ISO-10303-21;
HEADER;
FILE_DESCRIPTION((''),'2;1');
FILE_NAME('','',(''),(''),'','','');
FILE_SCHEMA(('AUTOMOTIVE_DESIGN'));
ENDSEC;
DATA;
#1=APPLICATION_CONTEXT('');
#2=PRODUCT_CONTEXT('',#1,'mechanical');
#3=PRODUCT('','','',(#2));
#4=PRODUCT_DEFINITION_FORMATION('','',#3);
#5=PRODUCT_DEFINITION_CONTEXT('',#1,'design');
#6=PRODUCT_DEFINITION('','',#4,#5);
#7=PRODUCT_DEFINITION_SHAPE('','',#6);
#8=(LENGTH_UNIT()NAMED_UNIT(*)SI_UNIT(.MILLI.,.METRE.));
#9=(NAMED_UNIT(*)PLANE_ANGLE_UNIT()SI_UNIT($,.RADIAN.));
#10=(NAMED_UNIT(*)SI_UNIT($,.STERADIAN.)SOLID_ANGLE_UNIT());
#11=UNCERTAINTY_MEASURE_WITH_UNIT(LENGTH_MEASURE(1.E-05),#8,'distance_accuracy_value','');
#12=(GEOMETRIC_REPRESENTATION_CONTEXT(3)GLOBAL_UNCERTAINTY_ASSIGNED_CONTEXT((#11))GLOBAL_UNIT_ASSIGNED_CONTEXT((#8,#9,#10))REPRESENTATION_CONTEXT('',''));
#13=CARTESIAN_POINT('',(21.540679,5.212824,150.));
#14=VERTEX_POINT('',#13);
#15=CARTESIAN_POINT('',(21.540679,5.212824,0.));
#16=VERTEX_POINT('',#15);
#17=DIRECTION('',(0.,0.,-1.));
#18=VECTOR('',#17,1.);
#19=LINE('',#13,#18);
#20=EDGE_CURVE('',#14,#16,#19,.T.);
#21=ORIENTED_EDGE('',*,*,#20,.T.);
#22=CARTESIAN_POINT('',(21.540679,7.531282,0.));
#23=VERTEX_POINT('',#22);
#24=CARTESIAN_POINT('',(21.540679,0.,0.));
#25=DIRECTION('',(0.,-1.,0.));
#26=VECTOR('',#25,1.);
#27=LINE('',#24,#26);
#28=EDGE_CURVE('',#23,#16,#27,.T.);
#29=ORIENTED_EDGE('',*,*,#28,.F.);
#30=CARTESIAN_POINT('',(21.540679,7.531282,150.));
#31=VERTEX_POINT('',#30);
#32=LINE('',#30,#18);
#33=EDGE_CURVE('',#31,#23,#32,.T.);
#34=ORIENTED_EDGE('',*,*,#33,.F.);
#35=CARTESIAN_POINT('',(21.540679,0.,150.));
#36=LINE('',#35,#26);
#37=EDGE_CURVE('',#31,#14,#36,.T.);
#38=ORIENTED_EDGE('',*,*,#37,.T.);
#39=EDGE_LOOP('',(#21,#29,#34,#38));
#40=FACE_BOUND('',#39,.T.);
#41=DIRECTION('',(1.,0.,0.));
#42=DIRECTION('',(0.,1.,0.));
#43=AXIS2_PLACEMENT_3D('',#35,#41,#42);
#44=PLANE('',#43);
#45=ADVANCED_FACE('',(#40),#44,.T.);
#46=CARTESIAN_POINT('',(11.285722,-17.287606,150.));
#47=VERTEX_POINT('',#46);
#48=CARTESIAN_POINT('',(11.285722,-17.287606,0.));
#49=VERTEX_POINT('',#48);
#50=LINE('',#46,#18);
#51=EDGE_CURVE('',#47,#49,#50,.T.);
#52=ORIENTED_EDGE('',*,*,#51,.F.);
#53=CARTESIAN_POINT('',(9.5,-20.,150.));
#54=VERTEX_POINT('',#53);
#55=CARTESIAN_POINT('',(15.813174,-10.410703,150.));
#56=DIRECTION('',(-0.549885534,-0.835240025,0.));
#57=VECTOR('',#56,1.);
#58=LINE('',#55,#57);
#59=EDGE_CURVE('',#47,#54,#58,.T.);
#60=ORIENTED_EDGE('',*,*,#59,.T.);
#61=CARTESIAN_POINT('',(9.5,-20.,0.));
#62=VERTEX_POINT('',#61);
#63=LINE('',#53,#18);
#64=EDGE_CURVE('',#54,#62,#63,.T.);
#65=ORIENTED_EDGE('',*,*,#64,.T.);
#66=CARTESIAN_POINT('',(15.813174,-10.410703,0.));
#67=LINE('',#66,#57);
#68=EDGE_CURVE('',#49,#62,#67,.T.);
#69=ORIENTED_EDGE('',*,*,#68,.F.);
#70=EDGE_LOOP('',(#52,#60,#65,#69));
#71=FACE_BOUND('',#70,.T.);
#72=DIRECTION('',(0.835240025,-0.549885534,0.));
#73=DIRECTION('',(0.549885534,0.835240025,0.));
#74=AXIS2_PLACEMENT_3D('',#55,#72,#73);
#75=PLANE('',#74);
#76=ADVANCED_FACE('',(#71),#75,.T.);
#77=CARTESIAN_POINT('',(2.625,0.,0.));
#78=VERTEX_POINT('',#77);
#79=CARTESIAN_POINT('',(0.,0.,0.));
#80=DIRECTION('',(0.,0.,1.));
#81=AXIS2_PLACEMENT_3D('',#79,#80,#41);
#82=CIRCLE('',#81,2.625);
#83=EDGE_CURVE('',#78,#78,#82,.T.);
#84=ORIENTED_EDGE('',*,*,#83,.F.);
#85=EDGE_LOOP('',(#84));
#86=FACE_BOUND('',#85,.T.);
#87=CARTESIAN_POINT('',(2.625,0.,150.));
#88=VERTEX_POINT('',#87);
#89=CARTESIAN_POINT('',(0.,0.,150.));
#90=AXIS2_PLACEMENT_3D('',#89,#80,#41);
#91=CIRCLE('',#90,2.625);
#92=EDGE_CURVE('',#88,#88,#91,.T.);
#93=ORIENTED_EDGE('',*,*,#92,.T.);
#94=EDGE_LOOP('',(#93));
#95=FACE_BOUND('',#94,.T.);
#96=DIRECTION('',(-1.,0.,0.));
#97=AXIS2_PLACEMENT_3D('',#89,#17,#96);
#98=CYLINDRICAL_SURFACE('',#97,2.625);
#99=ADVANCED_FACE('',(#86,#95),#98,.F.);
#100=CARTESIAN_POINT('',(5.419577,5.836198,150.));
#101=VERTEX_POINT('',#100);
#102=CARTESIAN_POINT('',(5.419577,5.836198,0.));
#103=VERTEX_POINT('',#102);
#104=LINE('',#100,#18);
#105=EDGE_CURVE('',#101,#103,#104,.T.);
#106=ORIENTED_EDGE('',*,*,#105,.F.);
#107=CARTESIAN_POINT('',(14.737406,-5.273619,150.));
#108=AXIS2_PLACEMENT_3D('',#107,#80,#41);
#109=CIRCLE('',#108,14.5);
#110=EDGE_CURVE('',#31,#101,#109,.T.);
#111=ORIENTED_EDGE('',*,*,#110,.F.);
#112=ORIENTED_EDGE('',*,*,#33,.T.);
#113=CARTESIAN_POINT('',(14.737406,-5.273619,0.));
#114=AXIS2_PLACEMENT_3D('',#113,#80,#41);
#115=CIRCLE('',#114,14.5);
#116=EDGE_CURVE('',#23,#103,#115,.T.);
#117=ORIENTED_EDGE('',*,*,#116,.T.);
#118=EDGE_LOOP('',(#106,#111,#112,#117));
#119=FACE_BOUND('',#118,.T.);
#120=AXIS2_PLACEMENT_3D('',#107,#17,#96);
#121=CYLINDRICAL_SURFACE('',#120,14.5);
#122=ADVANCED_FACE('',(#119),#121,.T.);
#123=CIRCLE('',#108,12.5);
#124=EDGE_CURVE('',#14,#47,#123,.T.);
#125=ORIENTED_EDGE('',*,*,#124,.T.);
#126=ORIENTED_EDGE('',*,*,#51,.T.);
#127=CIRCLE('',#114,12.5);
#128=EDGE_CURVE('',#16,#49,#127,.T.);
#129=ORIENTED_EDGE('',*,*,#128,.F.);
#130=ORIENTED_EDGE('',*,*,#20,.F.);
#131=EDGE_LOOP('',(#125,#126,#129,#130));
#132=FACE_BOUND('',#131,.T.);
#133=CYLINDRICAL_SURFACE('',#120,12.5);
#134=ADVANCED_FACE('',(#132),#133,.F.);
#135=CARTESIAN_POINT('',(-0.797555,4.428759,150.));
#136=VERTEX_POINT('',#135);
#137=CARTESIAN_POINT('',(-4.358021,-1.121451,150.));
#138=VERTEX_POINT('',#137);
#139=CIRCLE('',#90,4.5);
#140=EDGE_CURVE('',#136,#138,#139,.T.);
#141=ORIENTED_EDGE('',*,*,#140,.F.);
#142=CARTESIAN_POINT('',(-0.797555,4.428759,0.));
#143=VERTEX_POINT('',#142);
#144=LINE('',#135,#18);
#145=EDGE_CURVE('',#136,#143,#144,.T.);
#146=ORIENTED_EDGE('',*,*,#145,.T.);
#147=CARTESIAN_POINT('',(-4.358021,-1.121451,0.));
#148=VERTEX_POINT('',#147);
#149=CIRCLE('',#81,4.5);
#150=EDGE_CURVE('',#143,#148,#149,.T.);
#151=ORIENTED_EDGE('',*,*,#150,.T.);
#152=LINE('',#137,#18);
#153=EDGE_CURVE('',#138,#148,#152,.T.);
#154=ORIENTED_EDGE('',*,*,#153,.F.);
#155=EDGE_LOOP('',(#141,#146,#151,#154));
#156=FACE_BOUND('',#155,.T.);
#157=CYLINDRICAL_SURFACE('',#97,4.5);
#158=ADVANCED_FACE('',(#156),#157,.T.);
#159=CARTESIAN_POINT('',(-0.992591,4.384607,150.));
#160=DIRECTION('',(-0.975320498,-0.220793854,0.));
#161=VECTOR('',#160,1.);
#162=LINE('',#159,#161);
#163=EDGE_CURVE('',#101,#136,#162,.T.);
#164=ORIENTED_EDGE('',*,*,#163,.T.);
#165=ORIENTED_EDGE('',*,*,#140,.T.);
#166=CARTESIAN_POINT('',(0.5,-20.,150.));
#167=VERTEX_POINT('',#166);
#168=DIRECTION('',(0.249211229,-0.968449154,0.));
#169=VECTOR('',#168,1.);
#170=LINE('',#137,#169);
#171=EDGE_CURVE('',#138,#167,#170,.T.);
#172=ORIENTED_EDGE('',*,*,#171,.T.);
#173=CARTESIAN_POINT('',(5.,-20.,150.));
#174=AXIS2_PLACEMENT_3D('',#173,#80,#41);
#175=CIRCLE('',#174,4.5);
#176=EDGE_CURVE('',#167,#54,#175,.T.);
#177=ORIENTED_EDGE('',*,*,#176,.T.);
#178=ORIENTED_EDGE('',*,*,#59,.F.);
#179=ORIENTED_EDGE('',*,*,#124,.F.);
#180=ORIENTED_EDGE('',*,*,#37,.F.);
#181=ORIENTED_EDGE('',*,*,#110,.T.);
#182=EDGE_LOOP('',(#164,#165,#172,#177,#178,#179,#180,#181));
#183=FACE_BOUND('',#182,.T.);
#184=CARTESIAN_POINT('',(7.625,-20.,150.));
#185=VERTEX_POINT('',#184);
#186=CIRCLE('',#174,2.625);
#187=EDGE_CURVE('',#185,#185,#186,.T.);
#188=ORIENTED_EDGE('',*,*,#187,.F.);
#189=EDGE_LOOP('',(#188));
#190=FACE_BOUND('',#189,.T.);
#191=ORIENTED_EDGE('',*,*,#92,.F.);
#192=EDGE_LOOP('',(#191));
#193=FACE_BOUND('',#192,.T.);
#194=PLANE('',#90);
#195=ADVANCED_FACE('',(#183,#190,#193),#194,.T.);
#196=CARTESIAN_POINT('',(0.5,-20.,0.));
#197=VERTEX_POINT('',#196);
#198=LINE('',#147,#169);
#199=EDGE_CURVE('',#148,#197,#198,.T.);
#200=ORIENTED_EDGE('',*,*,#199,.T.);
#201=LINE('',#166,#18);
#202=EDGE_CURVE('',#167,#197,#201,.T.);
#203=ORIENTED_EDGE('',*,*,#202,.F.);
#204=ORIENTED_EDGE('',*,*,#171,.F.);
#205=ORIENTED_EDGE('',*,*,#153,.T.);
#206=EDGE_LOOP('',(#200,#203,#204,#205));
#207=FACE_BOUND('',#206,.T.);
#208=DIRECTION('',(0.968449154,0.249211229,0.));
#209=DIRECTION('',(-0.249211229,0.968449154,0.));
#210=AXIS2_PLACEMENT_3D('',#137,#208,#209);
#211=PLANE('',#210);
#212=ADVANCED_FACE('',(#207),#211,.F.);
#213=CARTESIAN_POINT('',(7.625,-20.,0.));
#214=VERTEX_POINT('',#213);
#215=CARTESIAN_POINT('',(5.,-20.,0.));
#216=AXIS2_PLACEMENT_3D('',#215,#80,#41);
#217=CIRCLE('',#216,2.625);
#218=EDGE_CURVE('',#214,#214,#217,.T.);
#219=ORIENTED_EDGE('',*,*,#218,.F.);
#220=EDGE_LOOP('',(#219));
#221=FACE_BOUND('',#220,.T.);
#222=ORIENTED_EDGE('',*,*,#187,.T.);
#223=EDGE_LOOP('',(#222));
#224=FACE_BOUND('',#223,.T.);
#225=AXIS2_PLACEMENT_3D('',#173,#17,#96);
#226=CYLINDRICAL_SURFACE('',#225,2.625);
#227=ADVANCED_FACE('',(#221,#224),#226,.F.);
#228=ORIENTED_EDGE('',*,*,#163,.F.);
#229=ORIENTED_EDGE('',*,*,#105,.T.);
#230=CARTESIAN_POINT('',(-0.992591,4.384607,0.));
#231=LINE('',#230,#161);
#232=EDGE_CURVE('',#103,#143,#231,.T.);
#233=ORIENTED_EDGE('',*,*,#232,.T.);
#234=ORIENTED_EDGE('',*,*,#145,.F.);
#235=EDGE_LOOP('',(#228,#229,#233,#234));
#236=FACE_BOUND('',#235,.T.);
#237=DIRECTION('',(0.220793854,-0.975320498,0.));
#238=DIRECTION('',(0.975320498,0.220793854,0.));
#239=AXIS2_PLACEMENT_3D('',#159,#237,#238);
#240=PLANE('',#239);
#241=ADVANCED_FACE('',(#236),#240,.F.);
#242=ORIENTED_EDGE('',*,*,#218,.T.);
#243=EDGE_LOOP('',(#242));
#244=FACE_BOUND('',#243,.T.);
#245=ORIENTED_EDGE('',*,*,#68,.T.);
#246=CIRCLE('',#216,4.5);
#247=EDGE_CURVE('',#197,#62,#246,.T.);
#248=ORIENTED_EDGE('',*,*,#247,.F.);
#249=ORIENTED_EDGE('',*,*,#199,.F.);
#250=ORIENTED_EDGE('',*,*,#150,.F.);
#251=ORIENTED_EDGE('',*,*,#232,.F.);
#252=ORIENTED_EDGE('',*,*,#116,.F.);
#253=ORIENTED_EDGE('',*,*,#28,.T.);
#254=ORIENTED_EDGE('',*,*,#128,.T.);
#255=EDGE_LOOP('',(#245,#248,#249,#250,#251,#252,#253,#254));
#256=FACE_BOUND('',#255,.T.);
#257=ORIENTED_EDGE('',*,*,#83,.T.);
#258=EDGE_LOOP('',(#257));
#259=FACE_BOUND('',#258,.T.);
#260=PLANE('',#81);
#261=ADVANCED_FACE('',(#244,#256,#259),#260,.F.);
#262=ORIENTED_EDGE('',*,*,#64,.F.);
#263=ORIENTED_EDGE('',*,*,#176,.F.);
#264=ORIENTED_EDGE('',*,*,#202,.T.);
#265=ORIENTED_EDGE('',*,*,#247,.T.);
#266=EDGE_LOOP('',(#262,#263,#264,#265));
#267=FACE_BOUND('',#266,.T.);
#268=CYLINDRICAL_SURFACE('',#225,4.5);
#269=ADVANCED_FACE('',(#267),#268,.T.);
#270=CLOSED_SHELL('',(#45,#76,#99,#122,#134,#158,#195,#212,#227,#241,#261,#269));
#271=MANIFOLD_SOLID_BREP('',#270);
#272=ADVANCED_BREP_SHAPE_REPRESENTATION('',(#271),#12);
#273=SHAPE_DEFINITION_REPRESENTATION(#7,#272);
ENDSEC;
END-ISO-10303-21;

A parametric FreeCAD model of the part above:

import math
import FreeCAD as App
import Part
import Sketcher

doc = App.newDocument("Part")
body = doc.addObject("PartDesign::Body", "Body")

sketch1 = body.newObject("Sketcher::SketchObject", "Sketch")
sketch1.AttachmentSupport = (doc.getObject("XY_Plane"), [""])
sketch1.MapMode = "FlatFace"
sketch1.addGeometry([
    Part.ArcOfCircle(Part.Circle(App.Vector(0, 0, 0), App.Vector(0, 0, 1), 4.5), math.radians(100.20872), math.radians(194.430842)),
    Part.LineSegment(App.Vector(-4.358021, -1.121451, 0), App.Vector(0.5, -20, 0)),
    Part.ArcOfCircle(Part.Circle(App.Vector(5, -20, 0), App.Vector(0, 0, 1), 4.5), math.radians(180), math.radians(360)),
    Part.LineSegment(App.Vector(9.5, -20, 0), App.Vector(11.285722, -17.287606, 0)),
    Part.ArcOfCircle(Part.Circle(App.Vector(14.737406, -5.27362, 0), App.Vector(0, 0, 1), 12.5), math.radians(-109.332843), math.radians(-106.02965)),
    Part.ArcOfCircle(Part.Circle(App.Vector(14.737406, -5.273619, 0), App.Vector(0, 0, 1), 12.5), math.radians(110.417441), math.radians(250.667157)),
    Part.ArcOfCircle(Part.Circle(App.Vector(14.737406, -5.273619, 0), App.Vector(0, 0, 1), 12.5), math.radians(57.025769), math.radians(110.417441)),
    Part.LineSegment(App.Vector(21.540679, 5.212824, 0), App.Vector(21.540679, 7.531282, 0)),
    Part.ArcOfCircle(Part.Circle(App.Vector(14.737406, -5.273619, 0), App.Vector(0, 0, 1), 14.5), math.radians(62.018192), math.radians(129.986639)),
    Part.LineSegment(App.Vector(5.419577, 5.836198, 0), App.Vector(-0.797555, 4.428759, 0)),
    Part.Circle(App.Vector(5, -20, 0), App.Vector(0, 0, 1), 2.625),
    Part.Circle(App.Vector(0, 0, 0), App.Vector(0, 0, 1), 2.625),
], False)
sketch1.addConstraint([
    Sketcher.Constraint("Tangent", 0, 2, 1, 1),
    Sketcher.Constraint("Coincident", 1, 2, 2, 1),
    Sketcher.Constraint("Coincident", 2, 2, 3, 1),
    Sketcher.Constraint("Coincident", 3, 2, 4, 2),
    Sketcher.Constraint("Tangent", 4, 1, 5, 2),
    Sketcher.Constraint("Tangent", 5, 1, 6, 2),
    Sketcher.Constraint("Coincident", 6, 1, 7, 1),
    Sketcher.Constraint("Coincident", 7, 2, 8, 1),
    Sketcher.Constraint("Coincident", 8, 2, 9, 1),
    Sketcher.Constraint("Coincident", 9, 2, 0, 1),
    Sketcher.Constraint("Vertical", 7),
    Sketcher.Constraint("Coincident", 0, 3, -1, 1),
    Sketcher.Constraint("Coincident", 11, 3, -1, 1),
    Sketcher.Constraint("Coincident", 6, 3, 4, 3),
    Sketcher.Constraint("Coincident", 8, 3, 4, 3),
    Sketcher.Constraint("Coincident", 10, 3, 2, 3),
    Sketcher.Constraint("Equal", 0, 2),
    Sketcher.Constraint("Equal", 10, 11),
    Sketcher.Constraint("Horizontal", 10, 3, 1, 2),
    Sketcher.Constraint("Horizontal", 1, 2, 2, 2),
    Sketcher.Constraint("Radius", 0, 4.5),
    Sketcher.Constraint("Radius", 4, 12.5),
    Sketcher.Constraint("Radius", 8, 14.5),
    Sketcher.Constraint("Diameter", 10, 5.25),
    Sketcher.Constraint("DistanceX", -1, 1, 2, 3, 5.0),
    Sketcher.Constraint("DistanceY", 2, 3, -1, 1, 20.0),
    Sketcher.Constraint("DistanceY", -1, 1, 8, 2, 5.836198),
    Sketcher.Constraint("DistanceY", 5, 3, 5, 1, 11.714698),
    Sketcher.Constraint("DistanceY", 5, 3, 7, 2, 12.804901),
    Sketcher.Constraint("Distance", 9, 6.37445),
    Sketcher.Constraint("DistanceY", 4, 3, -1, 1, 5.27362),
    Sketcher.Constraint("DistanceX", -1, 1, 3, 2, 11.285722),
    Sketcher.Constraint("DistanceY", 4, 1, -1, 1, 17.068761),
    Sketcher.Constraint("DistanceX", -1, 1, 5, 1, 10.37669),
])
pad1 = body.newObject("PartDesign::Pad", "Pad")
pad1.Profile = sketch1
pad1.Length = 150

doc.recompute()
